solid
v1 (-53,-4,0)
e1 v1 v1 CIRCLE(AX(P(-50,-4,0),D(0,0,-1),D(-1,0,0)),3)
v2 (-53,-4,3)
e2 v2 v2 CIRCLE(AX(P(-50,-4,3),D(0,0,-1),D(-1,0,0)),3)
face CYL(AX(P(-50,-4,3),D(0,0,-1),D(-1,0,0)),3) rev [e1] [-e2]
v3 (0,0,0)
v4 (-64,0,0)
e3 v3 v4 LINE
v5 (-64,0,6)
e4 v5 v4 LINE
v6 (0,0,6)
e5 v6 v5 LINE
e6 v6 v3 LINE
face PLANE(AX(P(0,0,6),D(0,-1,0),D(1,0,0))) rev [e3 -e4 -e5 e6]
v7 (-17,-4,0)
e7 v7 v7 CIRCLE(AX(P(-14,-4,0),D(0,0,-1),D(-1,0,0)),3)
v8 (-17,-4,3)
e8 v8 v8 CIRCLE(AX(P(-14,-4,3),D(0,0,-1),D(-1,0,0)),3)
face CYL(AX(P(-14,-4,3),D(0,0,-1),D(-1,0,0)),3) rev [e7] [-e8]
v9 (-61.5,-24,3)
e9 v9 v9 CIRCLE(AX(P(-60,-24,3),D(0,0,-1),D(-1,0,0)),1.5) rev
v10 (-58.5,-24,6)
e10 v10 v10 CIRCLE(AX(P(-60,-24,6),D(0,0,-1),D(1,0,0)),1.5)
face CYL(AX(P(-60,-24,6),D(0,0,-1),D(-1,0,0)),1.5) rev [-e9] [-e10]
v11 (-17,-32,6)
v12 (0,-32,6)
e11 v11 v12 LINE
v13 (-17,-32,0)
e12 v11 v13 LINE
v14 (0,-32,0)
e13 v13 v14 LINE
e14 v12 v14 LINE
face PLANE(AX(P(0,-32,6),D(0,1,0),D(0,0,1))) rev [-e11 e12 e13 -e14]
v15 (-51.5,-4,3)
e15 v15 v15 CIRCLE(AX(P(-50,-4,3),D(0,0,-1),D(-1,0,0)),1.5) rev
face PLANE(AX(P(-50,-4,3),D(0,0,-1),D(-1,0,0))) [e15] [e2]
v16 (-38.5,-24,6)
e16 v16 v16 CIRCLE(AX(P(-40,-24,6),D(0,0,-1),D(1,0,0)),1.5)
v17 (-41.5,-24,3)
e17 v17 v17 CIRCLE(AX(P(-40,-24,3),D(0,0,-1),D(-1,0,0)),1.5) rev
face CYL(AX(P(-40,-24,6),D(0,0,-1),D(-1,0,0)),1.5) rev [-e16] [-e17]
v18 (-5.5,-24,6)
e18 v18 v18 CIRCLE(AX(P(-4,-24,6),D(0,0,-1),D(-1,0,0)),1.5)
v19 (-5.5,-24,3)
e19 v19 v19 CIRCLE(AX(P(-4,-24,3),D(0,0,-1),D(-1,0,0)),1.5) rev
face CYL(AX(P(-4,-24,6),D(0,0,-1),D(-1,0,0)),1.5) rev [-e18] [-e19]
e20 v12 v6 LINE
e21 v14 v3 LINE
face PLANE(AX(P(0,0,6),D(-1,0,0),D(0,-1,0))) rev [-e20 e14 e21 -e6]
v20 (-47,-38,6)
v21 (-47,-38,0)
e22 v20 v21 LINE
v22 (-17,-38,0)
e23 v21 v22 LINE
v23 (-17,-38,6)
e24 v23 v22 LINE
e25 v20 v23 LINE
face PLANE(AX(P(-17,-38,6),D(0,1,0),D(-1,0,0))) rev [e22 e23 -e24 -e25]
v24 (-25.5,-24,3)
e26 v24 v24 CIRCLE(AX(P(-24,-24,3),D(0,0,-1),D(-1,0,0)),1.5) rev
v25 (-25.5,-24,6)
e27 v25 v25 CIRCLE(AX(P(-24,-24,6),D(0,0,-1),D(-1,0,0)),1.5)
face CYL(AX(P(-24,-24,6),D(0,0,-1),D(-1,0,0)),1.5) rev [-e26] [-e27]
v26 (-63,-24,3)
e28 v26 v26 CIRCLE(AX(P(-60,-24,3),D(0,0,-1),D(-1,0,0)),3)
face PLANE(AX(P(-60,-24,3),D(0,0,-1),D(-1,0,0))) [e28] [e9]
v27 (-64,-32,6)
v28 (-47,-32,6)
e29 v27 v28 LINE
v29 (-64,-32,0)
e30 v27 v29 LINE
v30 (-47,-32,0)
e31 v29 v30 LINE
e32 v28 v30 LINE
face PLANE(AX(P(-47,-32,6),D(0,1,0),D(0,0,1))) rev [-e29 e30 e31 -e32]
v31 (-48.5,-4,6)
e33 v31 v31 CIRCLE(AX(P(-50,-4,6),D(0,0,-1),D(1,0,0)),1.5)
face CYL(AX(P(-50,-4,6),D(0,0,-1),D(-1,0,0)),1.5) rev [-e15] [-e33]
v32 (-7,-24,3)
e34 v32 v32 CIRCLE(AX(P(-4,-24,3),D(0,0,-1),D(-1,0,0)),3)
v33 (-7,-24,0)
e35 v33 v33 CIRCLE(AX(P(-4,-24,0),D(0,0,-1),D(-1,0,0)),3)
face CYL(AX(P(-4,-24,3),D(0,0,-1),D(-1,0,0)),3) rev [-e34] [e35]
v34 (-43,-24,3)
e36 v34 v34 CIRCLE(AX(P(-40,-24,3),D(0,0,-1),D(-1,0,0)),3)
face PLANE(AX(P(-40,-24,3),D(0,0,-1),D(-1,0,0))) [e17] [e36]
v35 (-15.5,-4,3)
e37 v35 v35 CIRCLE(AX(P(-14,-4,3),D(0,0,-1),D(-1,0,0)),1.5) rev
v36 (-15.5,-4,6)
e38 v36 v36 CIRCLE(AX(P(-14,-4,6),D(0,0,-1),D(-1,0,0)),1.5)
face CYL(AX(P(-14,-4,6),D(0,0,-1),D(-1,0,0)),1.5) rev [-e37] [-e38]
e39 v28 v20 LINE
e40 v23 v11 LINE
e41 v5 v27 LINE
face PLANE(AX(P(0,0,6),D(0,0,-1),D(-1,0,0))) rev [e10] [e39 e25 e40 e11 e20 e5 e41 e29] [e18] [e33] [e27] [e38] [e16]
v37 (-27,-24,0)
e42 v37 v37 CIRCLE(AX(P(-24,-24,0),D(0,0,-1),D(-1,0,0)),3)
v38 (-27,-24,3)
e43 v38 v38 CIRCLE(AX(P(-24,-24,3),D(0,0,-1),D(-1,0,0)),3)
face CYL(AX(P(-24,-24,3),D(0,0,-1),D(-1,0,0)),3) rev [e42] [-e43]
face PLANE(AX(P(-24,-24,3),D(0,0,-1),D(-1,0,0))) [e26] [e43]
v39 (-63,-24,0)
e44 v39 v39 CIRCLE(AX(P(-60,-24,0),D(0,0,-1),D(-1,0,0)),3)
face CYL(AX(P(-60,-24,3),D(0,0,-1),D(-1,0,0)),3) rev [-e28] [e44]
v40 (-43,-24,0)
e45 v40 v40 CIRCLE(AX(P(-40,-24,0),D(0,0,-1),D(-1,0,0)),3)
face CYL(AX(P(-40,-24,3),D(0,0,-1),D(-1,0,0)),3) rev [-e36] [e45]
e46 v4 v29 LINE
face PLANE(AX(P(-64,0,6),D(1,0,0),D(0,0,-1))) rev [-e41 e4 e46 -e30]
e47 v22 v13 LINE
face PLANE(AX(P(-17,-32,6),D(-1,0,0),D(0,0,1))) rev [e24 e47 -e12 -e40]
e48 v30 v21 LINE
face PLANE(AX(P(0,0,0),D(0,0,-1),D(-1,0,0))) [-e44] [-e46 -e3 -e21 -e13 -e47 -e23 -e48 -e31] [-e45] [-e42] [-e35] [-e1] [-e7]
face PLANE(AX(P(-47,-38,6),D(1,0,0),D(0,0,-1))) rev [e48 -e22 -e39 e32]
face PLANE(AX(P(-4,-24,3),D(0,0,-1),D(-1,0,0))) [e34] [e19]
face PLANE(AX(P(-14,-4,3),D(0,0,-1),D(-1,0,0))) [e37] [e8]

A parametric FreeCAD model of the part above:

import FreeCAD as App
import Part
import Sketcher

V = App.Vector
Q = App.Units.Quantity

doc = App.newDocument("Part")
body = doc.addObject("PartDesign::Body", "Body")

sketch1 = doc.addObject("Sketcher::SketchObject", "Sketch")
body.addObject(sketch1)
sketch1.AttachmentSupport = (doc.XY_Plane, [""])
sketch1.MapMode = "FlatFace"
sketch1.addGeometry(Part.LineSegment(V(-17, -32, 0), V(0, -32, 0)), False)
sketch1.addGeometry(Part.LineSegment(V(0, -32, 0), V(0, 0, 0)), False)
sketch1.addGeometry(Part.LineSegment(V(0, 0, 0), V(-64, 0, 0)), False)
sketch1.addGeometry(Part.LineSegment(V(-64, 0, 0), V(-64, -32, 0)), False)
sketch1.addGeometry(Part.LineSegment(V(-64, -32, 0), V(-47, -32, 0)), False)
sketch1.addGeometry(Part.LineSegment(V(-47, -32, 0), V(-47, -38, 0)), False)
sketch1.addGeometry(Part.LineSegment(V(-47, -38, 0), V(-17, -38, 0)), False)
sketch1.addGeometry(Part.LineSegment(V(-17, -38, 0), V(-17, -32, 0)), False)
sketch1.addConstraint(Sketcher.Constraint("Coincident", 0, 2, 1, 1))
sketch1.addConstraint(Sketcher.Constraint("Coincident", 1, 2, 2, 1))
sketch1.addConstraint(Sketcher.Constraint("Coincident", 2, 2, 3, 1))
sketch1.addConstraint(Sketcher.Constraint("Coincident", 3, 2, 4, 1))
sketch1.addConstraint(Sketcher.Constraint("Coincident", 4, 2, 5, 1))
sketch1.addConstraint(Sketcher.Constraint("Coincident", 5, 2, 6, 1))
sketch1.addConstraint(Sketcher.Constraint("Coincident", 6, 2, 7, 1))
sketch1.addConstraint(Sketcher.Constraint("Coincident", 7, 2, 0, 1))
sketch1.addConstraint(Sketcher.Constraint("Horizontal", 0))
sketch1.addConstraint(Sketcher.Constraint("Vertical", 1))
sketch1.addConstraint(Sketcher.Constraint("Horizontal", 2))
sketch1.addConstraint(Sketcher.Constraint("Vertical", 3))
sketch1.addConstraint(Sketcher.Constraint("Horizontal", 4))
sketch1.addConstraint(Sketcher.Constraint("Vertical", 5))
sketch1.addConstraint(Sketcher.Constraint("Horizontal", 6))
sketch1.addConstraint(Sketcher.Constraint("Vertical", 7))
sketch1.addConstraint(Sketcher.Constraint("Coincident", 1, 2, -1, 1))
sketch1.addConstraint(Sketcher.Constraint("Horizontal", 0, 2, 3, 2))
sketch1.addConstraint(Sketcher.Constraint("Equal", 0, 4))
sketch1.addConstraint(Sketcher.Constraint("DistanceX", 0, 1, 0, 2, Q("17 mm")))
sketch1.addConstraint(Sketcher.Constraint("DistanceX", 2, 2, 2, 1, Q("64 mm")))
sketch1.addConstraint(Sketcher.Constraint("DistanceY", 1, 1, 1, 2, Q("32 mm")))
sketch1.addConstraint(Sketcher.Constraint("DistanceY", 5, 2, 5, 1, Q("6 mm")))
pad1 = doc.addObject("PartDesign::Pad", "Pad")
body.addObject(pad1)
pad1.Profile = sketch1
pad1.Length = 6

sketch2 = doc.addObject("Sketcher::SketchObject", "Sketch001")
body.addObject(sketch2)
sketch2.AttachmentSupport = (doc.XY_Plane, [""])
sketch2.MapMode = "FlatFace"
sketch2.addGeometry(Part.Circle(V(-14, -4, 0), V(0, 0, 1), 1.5), False)
sketch2.addGeometry(Part.Circle(V(-4, -24, 0), V(0, 0, 1), 1.5), False)
sketch2.addGeometry(Part.Circle(V(-24, -24, 0), V(0, 0, 1), 1.5), False)
sketch2.addGeometry(Part.Circle(V(-40, -24, 0), V(0, 0, 1), 1.5), False)
sketch2.addGeometry(Part.Circle(V(-60, -24, 0), V(0, 0, 1), 1.5), False)
sketch2.addGeometry(Part.Circle(V(-50, -4, 0), V(0, 0, 1), 1.5), False)
sketch2.addConstraint(Sketcher.Constraint("Equal", 0, 1))
sketch2.addConstraint(Sketcher.Constraint("Equal", 1, 2))
sketch2.addConstraint(Sketcher.Constraint("Equal", 2, 3))
sketch2.addConstraint(Sketcher.Constraint("Equal", 3, 4))
sketch2.addConstraint(Sketcher.Constraint("Equal", 4, 5))
sketch2.addConstraint(Sketcher.Constraint("Horizontal", 1, 3, 2, 3))
sketch2.addConstraint(Sketcher.Constraint("Horizontal", 2, 3, 3, 3))
sketch2.addConstraint(Sketcher.Constraint("Horizontal", 3, 3, 4, 3))
sketch2.addConstraint(Sketcher.Constraint("Horizontal", 0, 3, 5, 3))
sketch2.addConstraint(Sketcher.Constraint("Diameter", 0, Q("3 mm")))
sketch2.addConstraint(Sketcher.Constraint("DistanceX", 0, 3, -1, 1, Q("14 mm")))
sketch2.addConstraint(Sketcher.Constraint("DistanceY", 0, 3, -1, 1, Q("4 mm")))
sketch2.addConstraint(Sketcher.Constraint("DistanceX", 1, 3, -1, 1, Q("4 mm")))
sketch2.addConstraint(Sketcher.Constraint("DistanceY", 1, 3, -1, 1, Q("24 mm")))
sketch2.addConstraint(Sketcher.Constraint("DistanceX", 2, 3, -1, 1, Q("24 mm")))
sketch2.addConstraint(Sketcher.Constraint("DistanceX", 3, 3, -1, 1, Q("40 mm")))
sketch2.addConstraint(Sketcher.Constraint("DistanceX", 4, 3, -1, 1, Q("60 mm")))
sketch2.addConstraint(Sketcher.Constraint("DistanceX", 5, 3, -1, 1, Q("50 mm")))
pocket1 = doc.addObject("PartDesign::Pocket", "Pocket")
body.addObject(pocket1)
pocket1.Profile = sketch2
pocket1.Type = "ThroughAll"
pocket1.Reversed = True

sketch3 = doc.addObject("Sketcher::SketchObject", "Sketch002")
body.addObject(sketch3)
sketch3.AttachmentSupport = (doc.XY_Plane, [""])
sketch3.MapMode = "FlatFace"
sketch3.addGeometry(Part.Circle(V(-14, -4, 0), V(0, 0, 1), 3), False)
sketch3.addGeometry(Part.Circle(V(-4, -24, 0), V(0, 0, 1), 3), False)
sketch3.addGeometry(Part.Circle(V(-24, -24, 0), V(0, 0, 1), 3), False)
sketch3.addGeometry(Part.Circle(V(-40, -24, 0), V(0, 0, 1), 3), False)
sketch3.addGeometry(Part.Circle(V(-60, -24, 0), V(0, 0, 1), 3), False)
sketch3.addGeometry(Part.Circle(V(-50, -4, 0), V(0, 0, 1), 3), False)
sketch3.addConstraint(Sketcher.Constraint("Equal", 0, 1))
sketch3.addConstraint(Sketcher.Constraint("Equal", 1, 2))
sketch3.addConstraint(Sketcher.Constraint("Equal", 2, 3))
sketch3.addConstraint(Sketcher.Constraint("Equal", 3, 4))
sketch3.addConstraint(Sketcher.Constraint("Equal", 4, 5))
sketch3.addConstraint(Sketcher.Constraint("Horizontal", 1, 3, 2, 3))
sketch3.addConstraint(Sketcher.Constraint("Horizontal", 2, 3, 3, 3))
sketch3.addConstraint(Sketcher.Constraint("Horizontal", 3, 3, 4, 3))
sketch3.addConstraint(Sketcher.Constraint("Horizontal", 0, 3, 5, 3))
sketch3.addConstraint(Sketcher.Constraint("Diameter", 0, Q("6 mm")))
sketch3.addConstraint(Sketcher.Constraint("DistanceX", 0, 3, -1, 1, Q("14 mm")))
sketch3.addConstraint(Sketcher.Constraint("DistanceY", 0, 3, -1, 1, Q("4 mm")))
sketch3.addConstraint(Sketcher.Constraint("DistanceX", 1, 3, -1, 1, Q("4 mm")))
sketch3.addConstraint(Sketcher.Constraint("DistanceY", 1, 3, -1, 1, Q("24 mm")))
sketch3.addConstraint(Sketcher.Constraint("DistanceX", 2, 3, -1, 1, Q("24 mm")))
sketch3.addConstraint(Sketcher.Constraint("DistanceX", 3, 3, -1, 1, Q("40 mm")))
sketch3.addConstraint(Sketcher.Constraint("DistanceX", 4, 3, -1, 1, Q("60 mm")))
sketch3.addConstraint(Sketcher.Constraint("DistanceX", 5, 3, -1, 1, Q("50 mm")))
pocket2 = doc.addObject("PartDesign::Pocket", "Pocket001")
body.addObject(pocket2)
pocket2.Profile = sketch3
pocket2.Length = 3
pocket2.Reversed = True

doc.recompute()
